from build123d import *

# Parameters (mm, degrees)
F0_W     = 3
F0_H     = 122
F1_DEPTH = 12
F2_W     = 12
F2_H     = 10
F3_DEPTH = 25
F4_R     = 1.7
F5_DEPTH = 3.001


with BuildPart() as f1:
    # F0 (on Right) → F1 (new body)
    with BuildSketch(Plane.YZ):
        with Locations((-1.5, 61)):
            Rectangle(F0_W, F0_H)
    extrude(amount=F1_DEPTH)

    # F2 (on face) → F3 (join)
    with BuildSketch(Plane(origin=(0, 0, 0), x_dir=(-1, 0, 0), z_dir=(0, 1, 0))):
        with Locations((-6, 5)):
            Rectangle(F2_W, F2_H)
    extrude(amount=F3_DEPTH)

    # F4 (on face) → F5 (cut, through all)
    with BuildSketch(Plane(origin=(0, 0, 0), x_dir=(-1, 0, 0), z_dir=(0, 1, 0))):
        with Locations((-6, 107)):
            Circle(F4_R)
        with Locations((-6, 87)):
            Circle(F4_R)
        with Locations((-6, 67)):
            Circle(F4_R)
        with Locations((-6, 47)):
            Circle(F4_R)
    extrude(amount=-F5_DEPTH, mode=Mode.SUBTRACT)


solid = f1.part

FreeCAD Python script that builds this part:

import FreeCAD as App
import Part
import Sketcher
from FreeCAD import Vector
Q = App.Units.Quantity

doc = App.newDocument("Part")
body = doc.addObject("PartDesign::Body", "Body")

sketch1 = body.newObject("Sketcher::SketchObject", "Sketch")
sketch1.AttachmentSupport = (doc.getObject("YZ_Plane"), [""])
sketch1.MapMode = "FlatFace"
sketch1.addGeometry(Part.LineSegment(Vector(-3, 122, 0), Vector(-3, 0, 0)), False)
sketch1.addGeometry(Part.LineSegment(Vector(-3, 0, 0), Vector(0, 0, 0)), False)
sketch1.addGeometry(Part.LineSegment(Vector(0, 0, 0), Vector(0, 122, 0)), False)
sketch1.addGeometry(Part.LineSegment(Vector(0, 122, 0), Vector(-3, 122, 0)), False)
sketch1.addConstraint(Sketcher.Constraint("Coincident", 0, 2, 1, 1))
sketch1.addConstraint(Sketcher.Constraint("Coincident", 1, 2, 2, 1))
sketch1.addConstraint(Sketcher.Constraint("Coincident", 2, 2, 3, 1))
sketch1.addConstraint(Sketcher.Constraint("Coincident", 3, 2, 0, 1))
sketch1.addConstraint(Sketcher.Constraint("Vertical", 0))
sketch1.addConstraint(Sketcher.Constraint("Horizontal", 1))
sketch1.addConstraint(Sketcher.Constraint("Vertical", 2))
sketch1.addConstraint(Sketcher.Constraint("Horizontal", 3))
sketch1.addConstraint(Sketcher.Constraint("Coincident", 1, 2, -1, 1))
sketch1.addConstraint(Sketcher.Constraint("DistanceX", 1, 1, 1, 2, Q("3 mm")))
sketch1.addConstraint(Sketcher.Constraint("DistanceY", 0, 2, 0, 1, Q("122 mm")))
pad1 = body.newObject("PartDesign::Pad", "Pad")
pad1.Profile = sketch1
pad1.Length = 12

sketch2 = body.newObject("Sketcher::SketchObject", "Sketch001")
sketch2.AttachmentSupport = (doc.getObject("XZ_Plane"), [""])
sketch2.MapMode = "FlatFace"
sketch2.addGeometry(Part.LineSegment(Vector(12, 10, 0), Vector(12, 0, 0)), False)
sketch2.addGeometry(Part.LineSegment(Vector(12, 0, 0), Vector(0, 0, 0)), False)
sketch2.addGeometry(Part.LineSegment(Vector(0, 0, 0), Vector(0, 10, 0)), False)
sketch2.addGeometry(Part.LineSegment(Vector(0, 10, 0), Vector(12, 10, 0)), False)
sketch2.addConstraint(Sketcher.Constraint("Coincident", 0, 2, 1, 1))
sketch2.addConstraint(Sketcher.Constraint("Coincident", 1, 2, 2, 1))
sketch2.addConstraint(Sketcher.Constraint("Coincident", 2, 2, 3, 1))
sketch2.addConstraint(Sketcher.Constraint("Coincident", 3, 2, 0, 1))
sketch2.addConstraint(Sketcher.Constraint("Vertical", 0))
sketch2.addConstraint(Sketcher.Constraint("Horizontal", 1))
sketch2.addConstraint(Sketcher.Constraint("Vertical", 2))
sketch2.addConstraint(Sketcher.Constraint("Horizontal", 3))
sketch2.addConstraint(Sketcher.Constraint("Coincident", 1, 2, -1, 1))
sketch2.addConstraint(Sketcher.Constraint("DistanceX", 1, 2, 1, 1, Q("12 mm")))
sketch2.addConstraint(Sketcher.Constraint("DistanceY", 0, 2, 0, 1, Q("10 mm")))
pad2 = body.newObject("PartDesign::Pad", "Pad001")
pad2.Profile = sketch2
pad2.Length = 25
pad2.Reversed = True

sketch3 = body.newObject("Sketcher::SketchObject", "Sketch002")
sketch3.AttachmentSupport = (doc.getObject("XZ_Plane"), [""])
sketch3.MapMode = "FlatFace"
sketch3.addGeometry(Part.Circle(Vector(6, 107, 0), Vector(0, 0, 1), 1.7), False)
sketch3.addGeometry(Part.Circle(Vector(6, 87, 0), Vector(0, 0, 1), 1.7), False)
sketch3.addGeometry(Part.Circle(Vector(6, 67, 0), Vector(0, 0, 1), 1.7), False)
sketch3.addGeometry(Part.Circle(Vector(6, 47, 0), Vector(0, 0, 1), 1.7), False)
sketch3.addConstraint(Sketcher.Constraint("Equal", 0, 1))
sketch3.addConstraint(Sketcher.Constraint("Equal", 1, 2))
sketch3.addConstraint(Sketcher.Constraint("Equal", 2, 3))
sketch3.addConstraint(Sketcher.Constraint("Vertical", 0, 3, 1, 3))
sketch3.addConstraint(Sketcher.Constraint("Vertical", 1, 3, 2, 3))
sketch3.addConstraint(Sketcher.Constraint("Vertical", 2, 3, 3, 3))
sketch3.addConstraint(Sketcher.Constraint("Diameter", 0, Q("3.4 mm")))
sketch3.addConstraint(Sketcher.Constraint("DistanceX", -1, 1, 0, 3, Q("6 mm")))
sketch3.addConstraint(Sketcher.Constraint("DistanceY", -1, 1, 0, 3, Q("107 mm")))
sketch3.addConstraint(Sketcher.Constraint("DistanceY", -1, 1, 1, 3, Q("87 mm")))
sketch3.addConstraint(Sketcher.Constraint("DistanceY", -1, 1, 2, 3, Q("67 mm")))
sketch3.addConstraint(Sketcher.Constraint("DistanceY", -1, 1, 3, 3, Q("47 mm")))
pocket1 = body.newObject("PartDesign::Pocket", "Pocket")
pocket1.Profile = sketch3
pocket1.Type = "ThroughAll"
pocket1.Reversed = True

doc.recompute()
